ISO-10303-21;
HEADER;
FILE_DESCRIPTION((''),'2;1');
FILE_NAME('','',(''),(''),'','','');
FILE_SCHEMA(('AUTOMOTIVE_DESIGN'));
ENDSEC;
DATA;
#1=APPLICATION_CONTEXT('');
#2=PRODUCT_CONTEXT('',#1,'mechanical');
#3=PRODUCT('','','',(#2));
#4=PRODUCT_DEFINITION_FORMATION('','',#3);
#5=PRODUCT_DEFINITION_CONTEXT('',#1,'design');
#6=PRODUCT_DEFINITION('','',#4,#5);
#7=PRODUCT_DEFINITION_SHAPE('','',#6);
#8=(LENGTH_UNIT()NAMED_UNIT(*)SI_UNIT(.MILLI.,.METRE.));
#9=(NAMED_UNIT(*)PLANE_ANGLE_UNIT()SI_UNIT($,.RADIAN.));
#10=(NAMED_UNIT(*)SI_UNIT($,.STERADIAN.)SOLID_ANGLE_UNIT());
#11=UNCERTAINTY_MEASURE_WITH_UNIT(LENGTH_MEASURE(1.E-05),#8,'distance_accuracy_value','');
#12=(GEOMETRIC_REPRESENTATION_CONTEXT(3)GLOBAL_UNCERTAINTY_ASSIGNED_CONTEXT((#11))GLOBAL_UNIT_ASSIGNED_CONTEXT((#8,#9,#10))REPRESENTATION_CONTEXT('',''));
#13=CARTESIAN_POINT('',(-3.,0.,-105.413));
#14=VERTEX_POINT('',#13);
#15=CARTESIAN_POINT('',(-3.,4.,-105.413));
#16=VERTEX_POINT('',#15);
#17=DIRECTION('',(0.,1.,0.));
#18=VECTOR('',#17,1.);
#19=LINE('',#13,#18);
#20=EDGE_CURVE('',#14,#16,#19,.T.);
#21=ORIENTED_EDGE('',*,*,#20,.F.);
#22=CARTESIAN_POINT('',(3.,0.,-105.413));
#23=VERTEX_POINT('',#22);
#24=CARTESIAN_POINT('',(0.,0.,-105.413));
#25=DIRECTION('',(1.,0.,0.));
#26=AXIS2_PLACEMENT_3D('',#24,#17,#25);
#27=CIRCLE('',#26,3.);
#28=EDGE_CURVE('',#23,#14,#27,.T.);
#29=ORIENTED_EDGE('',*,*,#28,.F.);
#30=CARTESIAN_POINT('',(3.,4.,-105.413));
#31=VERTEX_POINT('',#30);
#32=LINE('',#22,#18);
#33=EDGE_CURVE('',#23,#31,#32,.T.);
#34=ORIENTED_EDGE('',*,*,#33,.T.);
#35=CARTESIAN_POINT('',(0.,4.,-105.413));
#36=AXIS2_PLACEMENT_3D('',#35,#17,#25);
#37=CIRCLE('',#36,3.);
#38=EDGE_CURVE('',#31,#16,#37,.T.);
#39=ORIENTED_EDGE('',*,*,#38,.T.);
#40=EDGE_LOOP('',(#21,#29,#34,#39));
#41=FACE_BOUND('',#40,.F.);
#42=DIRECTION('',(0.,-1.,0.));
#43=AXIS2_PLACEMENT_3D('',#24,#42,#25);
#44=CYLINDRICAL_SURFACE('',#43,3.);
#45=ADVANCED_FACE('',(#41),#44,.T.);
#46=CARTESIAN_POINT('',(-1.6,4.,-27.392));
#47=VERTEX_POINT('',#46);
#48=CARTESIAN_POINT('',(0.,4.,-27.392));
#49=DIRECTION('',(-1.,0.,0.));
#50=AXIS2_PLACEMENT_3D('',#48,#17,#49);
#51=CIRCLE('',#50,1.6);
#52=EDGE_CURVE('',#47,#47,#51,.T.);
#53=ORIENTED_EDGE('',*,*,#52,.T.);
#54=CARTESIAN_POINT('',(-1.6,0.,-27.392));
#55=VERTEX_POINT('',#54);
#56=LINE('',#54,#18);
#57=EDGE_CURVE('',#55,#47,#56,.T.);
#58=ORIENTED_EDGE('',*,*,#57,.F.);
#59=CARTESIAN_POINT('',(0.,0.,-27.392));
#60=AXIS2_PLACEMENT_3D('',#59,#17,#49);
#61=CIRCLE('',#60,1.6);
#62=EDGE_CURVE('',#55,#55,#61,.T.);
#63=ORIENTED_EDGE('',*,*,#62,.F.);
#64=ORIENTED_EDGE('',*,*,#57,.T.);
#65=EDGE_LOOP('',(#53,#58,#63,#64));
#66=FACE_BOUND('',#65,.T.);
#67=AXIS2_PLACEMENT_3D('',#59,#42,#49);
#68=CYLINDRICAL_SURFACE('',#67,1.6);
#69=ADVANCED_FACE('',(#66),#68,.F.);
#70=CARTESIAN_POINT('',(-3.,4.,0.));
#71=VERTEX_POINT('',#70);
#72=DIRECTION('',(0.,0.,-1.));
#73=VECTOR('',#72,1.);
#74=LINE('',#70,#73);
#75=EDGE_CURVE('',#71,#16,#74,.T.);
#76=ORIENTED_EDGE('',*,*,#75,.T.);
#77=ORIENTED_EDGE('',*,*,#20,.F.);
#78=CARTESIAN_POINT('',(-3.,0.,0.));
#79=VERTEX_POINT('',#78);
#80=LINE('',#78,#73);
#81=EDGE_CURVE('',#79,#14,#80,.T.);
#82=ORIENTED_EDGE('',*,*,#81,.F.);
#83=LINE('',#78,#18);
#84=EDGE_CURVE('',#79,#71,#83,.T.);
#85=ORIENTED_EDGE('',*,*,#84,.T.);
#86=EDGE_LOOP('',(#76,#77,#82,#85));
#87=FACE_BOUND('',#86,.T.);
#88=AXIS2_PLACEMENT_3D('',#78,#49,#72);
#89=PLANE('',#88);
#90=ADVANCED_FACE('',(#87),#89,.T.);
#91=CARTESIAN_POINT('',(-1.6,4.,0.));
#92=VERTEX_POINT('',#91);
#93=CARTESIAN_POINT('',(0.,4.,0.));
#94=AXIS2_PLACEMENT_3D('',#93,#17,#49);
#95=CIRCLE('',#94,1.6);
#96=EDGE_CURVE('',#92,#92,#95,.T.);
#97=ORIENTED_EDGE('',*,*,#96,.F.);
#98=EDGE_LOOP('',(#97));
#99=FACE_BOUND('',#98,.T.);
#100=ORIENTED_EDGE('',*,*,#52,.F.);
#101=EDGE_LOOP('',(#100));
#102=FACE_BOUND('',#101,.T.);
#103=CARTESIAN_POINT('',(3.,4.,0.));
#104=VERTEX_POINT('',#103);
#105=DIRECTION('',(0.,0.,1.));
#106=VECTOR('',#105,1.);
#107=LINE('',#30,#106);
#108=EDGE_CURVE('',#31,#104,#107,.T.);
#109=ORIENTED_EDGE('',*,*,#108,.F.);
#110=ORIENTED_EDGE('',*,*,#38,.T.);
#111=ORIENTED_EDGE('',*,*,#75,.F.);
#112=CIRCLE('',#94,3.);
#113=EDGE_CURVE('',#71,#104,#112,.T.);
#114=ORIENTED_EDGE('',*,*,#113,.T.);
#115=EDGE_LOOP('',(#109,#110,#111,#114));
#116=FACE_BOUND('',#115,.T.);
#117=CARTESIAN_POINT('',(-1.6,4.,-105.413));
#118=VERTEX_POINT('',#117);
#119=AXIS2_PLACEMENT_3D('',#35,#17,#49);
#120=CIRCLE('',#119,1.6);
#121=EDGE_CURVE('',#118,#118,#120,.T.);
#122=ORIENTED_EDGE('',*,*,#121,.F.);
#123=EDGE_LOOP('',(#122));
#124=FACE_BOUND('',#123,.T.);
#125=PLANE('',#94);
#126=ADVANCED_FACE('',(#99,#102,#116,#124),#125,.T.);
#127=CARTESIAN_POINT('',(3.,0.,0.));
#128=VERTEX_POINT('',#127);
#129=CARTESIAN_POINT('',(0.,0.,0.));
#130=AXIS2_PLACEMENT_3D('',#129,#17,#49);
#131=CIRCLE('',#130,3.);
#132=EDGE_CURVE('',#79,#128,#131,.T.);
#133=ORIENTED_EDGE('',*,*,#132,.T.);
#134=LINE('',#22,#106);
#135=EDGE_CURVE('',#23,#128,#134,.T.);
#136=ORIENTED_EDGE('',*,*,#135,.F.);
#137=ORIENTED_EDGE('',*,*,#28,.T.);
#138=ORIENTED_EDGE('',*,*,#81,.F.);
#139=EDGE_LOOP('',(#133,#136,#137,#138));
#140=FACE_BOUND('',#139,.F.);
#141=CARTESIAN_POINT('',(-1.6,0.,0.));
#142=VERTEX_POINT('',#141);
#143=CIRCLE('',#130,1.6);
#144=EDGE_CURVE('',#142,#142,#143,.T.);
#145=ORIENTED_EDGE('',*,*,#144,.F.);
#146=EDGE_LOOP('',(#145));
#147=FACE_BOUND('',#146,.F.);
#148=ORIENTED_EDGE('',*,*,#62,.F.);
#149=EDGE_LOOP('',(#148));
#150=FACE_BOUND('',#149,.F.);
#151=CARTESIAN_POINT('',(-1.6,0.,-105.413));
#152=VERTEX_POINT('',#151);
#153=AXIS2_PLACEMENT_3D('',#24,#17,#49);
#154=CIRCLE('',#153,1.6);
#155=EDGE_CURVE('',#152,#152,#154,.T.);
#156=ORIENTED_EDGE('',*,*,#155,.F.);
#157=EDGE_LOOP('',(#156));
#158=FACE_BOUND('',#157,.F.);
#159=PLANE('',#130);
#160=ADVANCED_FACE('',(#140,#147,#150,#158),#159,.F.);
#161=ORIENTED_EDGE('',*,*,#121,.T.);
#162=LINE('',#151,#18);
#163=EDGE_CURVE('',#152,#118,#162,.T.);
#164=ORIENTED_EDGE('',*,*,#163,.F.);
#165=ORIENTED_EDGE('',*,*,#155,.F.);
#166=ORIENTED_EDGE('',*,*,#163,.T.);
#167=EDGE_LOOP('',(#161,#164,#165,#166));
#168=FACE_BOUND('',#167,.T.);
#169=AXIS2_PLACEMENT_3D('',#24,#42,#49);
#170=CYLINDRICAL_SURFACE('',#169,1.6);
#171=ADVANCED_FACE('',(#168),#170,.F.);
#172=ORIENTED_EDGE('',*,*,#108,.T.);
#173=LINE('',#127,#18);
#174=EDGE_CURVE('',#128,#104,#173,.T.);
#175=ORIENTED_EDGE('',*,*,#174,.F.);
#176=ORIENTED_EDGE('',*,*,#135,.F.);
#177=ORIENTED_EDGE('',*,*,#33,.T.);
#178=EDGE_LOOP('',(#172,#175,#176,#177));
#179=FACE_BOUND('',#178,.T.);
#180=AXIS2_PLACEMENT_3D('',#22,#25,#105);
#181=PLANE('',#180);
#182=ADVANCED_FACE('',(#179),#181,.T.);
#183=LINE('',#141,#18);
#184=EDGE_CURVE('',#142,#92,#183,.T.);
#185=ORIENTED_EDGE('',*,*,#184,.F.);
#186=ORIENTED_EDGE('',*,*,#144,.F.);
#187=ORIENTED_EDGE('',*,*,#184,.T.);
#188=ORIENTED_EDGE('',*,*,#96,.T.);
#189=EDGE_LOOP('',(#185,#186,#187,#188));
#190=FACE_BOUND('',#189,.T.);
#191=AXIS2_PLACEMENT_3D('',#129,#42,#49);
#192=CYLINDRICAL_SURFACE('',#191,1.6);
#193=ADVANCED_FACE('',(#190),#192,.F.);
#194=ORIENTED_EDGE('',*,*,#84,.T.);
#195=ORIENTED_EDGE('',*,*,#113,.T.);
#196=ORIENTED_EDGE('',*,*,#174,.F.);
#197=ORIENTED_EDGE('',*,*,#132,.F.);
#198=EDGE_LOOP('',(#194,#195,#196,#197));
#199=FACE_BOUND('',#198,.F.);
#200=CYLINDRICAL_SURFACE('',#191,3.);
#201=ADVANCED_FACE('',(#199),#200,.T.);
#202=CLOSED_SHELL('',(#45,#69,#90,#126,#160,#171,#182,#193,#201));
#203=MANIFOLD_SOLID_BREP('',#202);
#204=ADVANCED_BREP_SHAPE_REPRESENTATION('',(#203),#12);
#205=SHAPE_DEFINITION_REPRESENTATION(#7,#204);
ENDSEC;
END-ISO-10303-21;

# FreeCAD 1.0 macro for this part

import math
import FreeCAD as App
import Part
import Sketcher

V = App.Vector

doc = App.newDocument("Part")
body = doc.addObject("PartDesign::Body", "Body")

# Sketch on XZ plane
sketch1 = body.newObject("Sketcher::SketchObject", "Sketch")
sketch1.AttachmentSupport = (doc.getObject("XZ_Plane"), [""])
sketch1.MapMode = "FlatFace"
sketch1.addGeometry([
    Part.LineSegment(V(-3, -105.413, 0), V(-3, 0, 0)),  # 0
    Part.ArcOfCircle(Part.Circle(V(0, 0, 0), V(0, 0, 1), 3), math.radians(0), math.radians(180)),  # 1
    Part.LineSegment(V(3, 0, 0), V(3, -105.413, 0)),  # 2
    Part.ArcOfCircle(Part.Circle(V(0, -105.413, 0), V(0, 0, 1), 3), math.radians(180), math.radians(360)),  # 3
    Part.Circle(V(0, -105.413, 0), V(0, 0, 1), 1.6),  # 4
    Part.Circle(V(0, -27.392, 0), V(0, 0, 1), 1.6),  # 5
    Part.Circle(V(0, 0, 0), V(0, 0, 1), 1.6),  # 6
], False)
sketch1.addConstraint([
    Sketcher.Constraint("Tangent", 0, 2, 1, 2),
    Sketcher.Constraint("Tangent", 1, 1, 2, 1),
    Sketcher.Constraint("Tangent", 2, 2, 3, 2),
    Sketcher.Constraint("Tangent", 3, 1, 0, 1),
    Sketcher.Constraint("Vertical", 0),
    Sketcher.Constraint("Vertical", 2),
    Sketcher.Constraint("Coincident", 1, 3, -1, 1),
    Sketcher.Constraint("Coincident", 6, 3, -1, 1),
    Sketcher.Constraint("Coincident", 4, 3, 3, 3),
    Sketcher.Constraint("Equal", 4, 5),
    Sketcher.Constraint("Equal", 5, 6),
    Sketcher.Constraint("PointOnObject", 5, 3, -2),
    Sketcher.Constraint("Radius", 1, 3.0),
    Sketcher.Constraint("Diameter", 4, 3.2),
    Sketcher.Constraint("DistanceY", 0, 1, 0, 2, 105.413),
    Sketcher.Constraint("DistanceY", 5, 3, -1, 1, 27.392),
])
pad1 = body.newObject("PartDesign::Pad", "Pad")
pad1.Profile = sketch1
pad1.Length = 4
pad1.Reversed = True

doc.recompute()
